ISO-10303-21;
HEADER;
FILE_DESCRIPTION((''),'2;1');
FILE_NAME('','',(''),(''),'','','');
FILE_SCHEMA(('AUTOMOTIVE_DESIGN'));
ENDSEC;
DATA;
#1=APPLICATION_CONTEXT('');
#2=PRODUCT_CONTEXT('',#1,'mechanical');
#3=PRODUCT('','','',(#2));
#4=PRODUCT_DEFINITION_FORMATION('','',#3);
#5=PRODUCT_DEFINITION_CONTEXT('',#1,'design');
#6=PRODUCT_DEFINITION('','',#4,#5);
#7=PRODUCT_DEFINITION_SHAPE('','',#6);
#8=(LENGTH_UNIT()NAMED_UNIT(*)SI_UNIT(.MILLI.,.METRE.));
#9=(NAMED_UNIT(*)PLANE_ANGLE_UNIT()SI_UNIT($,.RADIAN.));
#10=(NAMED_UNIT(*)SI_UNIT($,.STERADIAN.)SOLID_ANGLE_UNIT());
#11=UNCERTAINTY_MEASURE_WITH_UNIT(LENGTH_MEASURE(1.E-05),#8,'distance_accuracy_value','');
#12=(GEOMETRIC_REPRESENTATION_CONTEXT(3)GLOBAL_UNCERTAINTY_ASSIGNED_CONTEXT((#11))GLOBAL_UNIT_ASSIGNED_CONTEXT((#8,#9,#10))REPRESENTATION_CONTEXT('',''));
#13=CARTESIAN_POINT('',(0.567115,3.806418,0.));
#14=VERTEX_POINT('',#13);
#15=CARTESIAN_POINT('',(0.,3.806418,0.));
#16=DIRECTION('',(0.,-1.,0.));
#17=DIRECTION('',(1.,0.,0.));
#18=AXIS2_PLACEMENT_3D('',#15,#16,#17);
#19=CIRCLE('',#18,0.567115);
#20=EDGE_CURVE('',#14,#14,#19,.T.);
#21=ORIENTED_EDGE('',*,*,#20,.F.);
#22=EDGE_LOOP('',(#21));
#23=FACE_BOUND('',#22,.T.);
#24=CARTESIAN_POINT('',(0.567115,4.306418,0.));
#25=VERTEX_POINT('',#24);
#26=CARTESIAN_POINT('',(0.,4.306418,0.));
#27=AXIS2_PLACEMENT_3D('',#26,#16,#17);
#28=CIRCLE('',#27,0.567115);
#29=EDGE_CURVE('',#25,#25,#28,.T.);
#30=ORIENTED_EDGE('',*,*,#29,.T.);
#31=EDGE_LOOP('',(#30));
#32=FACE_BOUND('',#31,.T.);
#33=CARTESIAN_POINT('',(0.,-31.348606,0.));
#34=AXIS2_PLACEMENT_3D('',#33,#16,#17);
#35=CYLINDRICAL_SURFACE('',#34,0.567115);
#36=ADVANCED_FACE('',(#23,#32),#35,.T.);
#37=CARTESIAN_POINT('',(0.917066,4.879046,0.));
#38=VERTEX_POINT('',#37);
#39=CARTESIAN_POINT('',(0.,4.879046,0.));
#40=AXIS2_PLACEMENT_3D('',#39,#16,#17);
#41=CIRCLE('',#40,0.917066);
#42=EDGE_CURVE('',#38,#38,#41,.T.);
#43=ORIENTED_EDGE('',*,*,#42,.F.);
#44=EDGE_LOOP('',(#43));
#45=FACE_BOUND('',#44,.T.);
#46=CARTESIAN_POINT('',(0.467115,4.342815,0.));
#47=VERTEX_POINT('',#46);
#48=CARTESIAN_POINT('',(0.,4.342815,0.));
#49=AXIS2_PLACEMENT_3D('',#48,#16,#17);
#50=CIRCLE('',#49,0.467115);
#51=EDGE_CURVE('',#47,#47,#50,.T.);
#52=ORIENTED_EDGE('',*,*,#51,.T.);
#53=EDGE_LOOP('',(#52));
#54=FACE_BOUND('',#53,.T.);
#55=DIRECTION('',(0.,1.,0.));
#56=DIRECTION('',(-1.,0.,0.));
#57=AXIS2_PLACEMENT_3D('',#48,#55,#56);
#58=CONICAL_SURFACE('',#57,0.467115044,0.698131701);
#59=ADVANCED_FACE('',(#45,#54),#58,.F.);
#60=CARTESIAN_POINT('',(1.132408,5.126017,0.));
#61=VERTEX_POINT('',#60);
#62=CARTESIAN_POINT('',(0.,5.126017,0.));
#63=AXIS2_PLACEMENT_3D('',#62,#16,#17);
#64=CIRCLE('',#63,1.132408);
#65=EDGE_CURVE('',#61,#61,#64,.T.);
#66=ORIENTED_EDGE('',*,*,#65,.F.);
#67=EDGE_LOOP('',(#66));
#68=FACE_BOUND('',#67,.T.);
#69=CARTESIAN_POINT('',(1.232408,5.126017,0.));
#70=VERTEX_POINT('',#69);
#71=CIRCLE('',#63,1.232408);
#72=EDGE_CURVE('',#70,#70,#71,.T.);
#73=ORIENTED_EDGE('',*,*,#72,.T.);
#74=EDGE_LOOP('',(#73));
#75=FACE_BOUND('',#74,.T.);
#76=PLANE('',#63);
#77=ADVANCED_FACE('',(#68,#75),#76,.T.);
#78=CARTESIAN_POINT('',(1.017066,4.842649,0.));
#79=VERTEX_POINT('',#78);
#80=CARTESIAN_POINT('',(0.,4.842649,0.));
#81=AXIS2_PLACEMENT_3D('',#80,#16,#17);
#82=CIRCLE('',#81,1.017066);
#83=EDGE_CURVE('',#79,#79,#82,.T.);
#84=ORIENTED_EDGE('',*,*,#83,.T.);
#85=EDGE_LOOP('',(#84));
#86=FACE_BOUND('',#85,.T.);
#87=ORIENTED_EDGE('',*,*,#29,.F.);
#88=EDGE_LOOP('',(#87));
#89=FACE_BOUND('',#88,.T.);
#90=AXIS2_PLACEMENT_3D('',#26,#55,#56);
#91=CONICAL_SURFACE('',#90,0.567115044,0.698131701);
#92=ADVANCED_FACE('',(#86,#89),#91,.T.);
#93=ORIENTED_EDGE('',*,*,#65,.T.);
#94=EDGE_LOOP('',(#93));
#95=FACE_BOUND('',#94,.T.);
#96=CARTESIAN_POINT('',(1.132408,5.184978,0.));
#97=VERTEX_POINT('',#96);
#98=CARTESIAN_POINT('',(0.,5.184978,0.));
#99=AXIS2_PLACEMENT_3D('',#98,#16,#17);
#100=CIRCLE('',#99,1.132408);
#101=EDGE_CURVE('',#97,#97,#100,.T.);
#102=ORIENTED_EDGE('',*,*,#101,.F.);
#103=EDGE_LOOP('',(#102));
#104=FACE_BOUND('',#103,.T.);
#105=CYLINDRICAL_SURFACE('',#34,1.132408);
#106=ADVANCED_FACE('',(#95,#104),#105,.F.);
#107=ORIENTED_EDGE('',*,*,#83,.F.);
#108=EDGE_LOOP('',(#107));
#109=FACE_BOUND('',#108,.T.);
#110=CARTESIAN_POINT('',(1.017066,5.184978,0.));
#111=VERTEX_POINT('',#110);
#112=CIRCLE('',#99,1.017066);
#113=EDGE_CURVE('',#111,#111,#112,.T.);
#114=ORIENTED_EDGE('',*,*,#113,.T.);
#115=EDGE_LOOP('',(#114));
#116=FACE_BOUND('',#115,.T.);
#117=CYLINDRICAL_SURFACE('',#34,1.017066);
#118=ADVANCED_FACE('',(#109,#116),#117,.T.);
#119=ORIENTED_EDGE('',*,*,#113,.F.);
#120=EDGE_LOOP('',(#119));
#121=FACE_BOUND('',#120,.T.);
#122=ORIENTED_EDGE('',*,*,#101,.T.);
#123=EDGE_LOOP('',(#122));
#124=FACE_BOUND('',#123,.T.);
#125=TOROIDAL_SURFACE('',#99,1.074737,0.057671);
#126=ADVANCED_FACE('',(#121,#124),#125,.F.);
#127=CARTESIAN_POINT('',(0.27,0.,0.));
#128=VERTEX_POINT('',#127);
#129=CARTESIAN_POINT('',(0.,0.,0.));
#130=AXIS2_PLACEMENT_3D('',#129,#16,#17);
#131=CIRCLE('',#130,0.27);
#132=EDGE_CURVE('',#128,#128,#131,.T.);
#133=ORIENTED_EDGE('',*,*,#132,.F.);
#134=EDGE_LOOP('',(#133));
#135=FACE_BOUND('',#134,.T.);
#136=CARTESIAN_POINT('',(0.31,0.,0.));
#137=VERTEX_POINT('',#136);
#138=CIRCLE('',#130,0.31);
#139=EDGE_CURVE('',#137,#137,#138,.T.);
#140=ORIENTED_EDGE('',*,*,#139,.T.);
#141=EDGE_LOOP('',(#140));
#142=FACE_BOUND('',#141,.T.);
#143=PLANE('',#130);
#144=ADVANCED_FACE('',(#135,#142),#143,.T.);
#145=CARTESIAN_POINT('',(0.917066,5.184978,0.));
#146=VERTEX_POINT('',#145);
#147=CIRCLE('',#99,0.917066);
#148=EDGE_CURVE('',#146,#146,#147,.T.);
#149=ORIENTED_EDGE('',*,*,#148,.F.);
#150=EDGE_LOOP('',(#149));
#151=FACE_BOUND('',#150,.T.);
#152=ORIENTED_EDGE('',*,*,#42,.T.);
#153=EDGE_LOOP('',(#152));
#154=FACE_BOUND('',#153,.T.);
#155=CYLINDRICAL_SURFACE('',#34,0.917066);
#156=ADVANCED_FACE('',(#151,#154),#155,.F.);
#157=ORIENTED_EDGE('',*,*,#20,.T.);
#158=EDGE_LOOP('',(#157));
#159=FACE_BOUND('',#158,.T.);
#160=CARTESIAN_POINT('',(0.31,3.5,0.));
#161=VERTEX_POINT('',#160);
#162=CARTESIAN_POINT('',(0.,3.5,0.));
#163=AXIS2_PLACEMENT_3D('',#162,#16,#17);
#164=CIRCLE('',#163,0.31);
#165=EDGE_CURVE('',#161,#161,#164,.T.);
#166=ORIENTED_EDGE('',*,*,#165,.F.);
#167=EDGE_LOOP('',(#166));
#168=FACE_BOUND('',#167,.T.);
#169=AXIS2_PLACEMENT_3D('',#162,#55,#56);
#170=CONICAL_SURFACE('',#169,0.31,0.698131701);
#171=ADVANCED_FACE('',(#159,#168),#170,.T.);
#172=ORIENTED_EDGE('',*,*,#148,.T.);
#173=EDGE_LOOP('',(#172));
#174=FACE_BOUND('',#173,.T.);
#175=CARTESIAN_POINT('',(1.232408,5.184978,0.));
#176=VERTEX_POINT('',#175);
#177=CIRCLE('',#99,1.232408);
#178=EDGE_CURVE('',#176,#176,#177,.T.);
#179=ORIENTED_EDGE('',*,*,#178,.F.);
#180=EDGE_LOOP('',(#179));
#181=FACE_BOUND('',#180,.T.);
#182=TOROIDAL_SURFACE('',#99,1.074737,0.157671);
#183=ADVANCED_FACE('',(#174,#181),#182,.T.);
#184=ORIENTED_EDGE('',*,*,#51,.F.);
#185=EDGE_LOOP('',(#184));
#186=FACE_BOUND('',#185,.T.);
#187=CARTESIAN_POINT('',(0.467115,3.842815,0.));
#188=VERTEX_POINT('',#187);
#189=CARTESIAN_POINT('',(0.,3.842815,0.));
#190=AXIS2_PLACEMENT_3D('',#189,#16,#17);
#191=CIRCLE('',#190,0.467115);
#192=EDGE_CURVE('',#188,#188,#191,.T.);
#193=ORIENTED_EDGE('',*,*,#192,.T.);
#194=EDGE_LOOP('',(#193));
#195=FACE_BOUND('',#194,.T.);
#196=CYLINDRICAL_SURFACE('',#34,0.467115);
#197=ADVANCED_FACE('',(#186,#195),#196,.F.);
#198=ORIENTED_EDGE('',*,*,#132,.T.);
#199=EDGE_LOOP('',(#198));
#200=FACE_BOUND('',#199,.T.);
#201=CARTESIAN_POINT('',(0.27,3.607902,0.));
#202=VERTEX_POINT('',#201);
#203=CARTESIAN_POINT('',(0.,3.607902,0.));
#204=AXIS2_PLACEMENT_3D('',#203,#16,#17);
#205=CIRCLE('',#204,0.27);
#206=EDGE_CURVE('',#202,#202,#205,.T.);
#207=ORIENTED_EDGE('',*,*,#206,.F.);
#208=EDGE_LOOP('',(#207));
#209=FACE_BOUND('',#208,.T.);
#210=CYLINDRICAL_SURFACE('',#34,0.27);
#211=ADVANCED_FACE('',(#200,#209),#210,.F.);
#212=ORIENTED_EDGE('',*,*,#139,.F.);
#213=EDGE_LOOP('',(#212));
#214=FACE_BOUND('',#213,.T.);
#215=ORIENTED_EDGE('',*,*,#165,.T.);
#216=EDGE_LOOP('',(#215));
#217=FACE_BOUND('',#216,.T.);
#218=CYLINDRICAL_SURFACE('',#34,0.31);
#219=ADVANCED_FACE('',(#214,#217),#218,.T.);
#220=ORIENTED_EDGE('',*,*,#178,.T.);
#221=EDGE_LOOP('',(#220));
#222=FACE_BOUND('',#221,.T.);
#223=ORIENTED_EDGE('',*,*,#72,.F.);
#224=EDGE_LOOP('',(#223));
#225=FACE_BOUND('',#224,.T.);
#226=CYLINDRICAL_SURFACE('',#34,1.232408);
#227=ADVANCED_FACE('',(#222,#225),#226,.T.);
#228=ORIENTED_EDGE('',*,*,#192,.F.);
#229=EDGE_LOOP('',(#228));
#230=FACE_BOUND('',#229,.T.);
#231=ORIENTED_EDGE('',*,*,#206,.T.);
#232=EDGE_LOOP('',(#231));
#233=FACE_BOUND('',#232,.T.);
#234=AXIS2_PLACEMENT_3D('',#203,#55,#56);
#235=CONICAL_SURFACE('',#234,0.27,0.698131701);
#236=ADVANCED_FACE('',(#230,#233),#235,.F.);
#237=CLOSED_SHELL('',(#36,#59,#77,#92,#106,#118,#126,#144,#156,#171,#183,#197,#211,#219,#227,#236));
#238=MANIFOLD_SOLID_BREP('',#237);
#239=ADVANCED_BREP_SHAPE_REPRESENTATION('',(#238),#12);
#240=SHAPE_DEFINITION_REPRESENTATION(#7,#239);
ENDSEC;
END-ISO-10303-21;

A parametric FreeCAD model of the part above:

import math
import FreeCAD as App
import Part
import Sketcher

V = App.Vector
Q = App.Units.Quantity

doc = App.newDocument("Part")
body = doc.addObject("PartDesign::Body", "Body")

sketch1 = body.newObject("Sketcher::SketchObject", "Sketch")
sketch1.AttachmentSupport = (doc.getObject("XY_Plane"), [""])
sketch1.MapMode = "FlatFace"
sketch1.addGeometry(Part.ArcOfCircle(Part.Circle(V(1.074737, 5.184978, 0), V(0, 0, 1), 0.157671), math.radians(0), math.radians(180)), False)
sketch1.addGeometry(Part.LineSegment(V(0.917066, 5.184978, 0), V(0.917066, 4.879046, 0)), False)
sketch1.addGeometry(Part.LineSegment(V(0.917066, 4.879046, 0), V(0.467115, 4.342815, 0)), False)
sketch1.addGeometry(Part.LineSegment(V(0.467115, 4.342815, 0), V(0.467115, 3.842815, 0)), False)
sketch1.addGeometry(Part.LineSegment(V(0.467115, 3.842815, 0), V(0.27, 3.607902, 0)), False)
sketch1.addGeometry(Part.LineSegment(V(0.27, 3.607902, 0), V(0.27, 0, 0)), False)
sketch1.addGeometry(Part.LineSegment(V(0.27, 0, 0), V(0.31, 0, 0)), False)
sketch1.addGeometry(Part.LineSegment(V(0.31, 0, 0), V(0.31, 3.5, 0)), False)
sketch1.addGeometry(Part.LineSegment(V(0.31, 3.5, 0), V(0.567115, 3.806418, 0)), False)
sketch1.addGeometry(Part.LineSegment(V(0.567115, 3.806418, 0), V(0.567115, 4.306418, 0)), False)
sketch1.addGeometry(Part.LineSegment(V(0.567115, 4.306418, 0), V(1.017066, 4.842649, 0)), False)
sketch1.addGeometry(Part.LineSegment(V(1.017066, 4.842649, 0), V(1.017066, 5.184978, 0)), False)
sketch1.addGeometry(Part.ArcOfCircle(Part.Circle(V(1.074737, 5.184978, 0), V(0, 0, 1), 0.057671), math.radians(0.000001), math.radians(179.999999)), False)
sketch1.addGeometry(Part.LineSegment(V(1.132408, 5.184978, 0), V(1.132408, 5.126017, 0)), False)
sketch1.addGeometry(Part.LineSegment(V(1.132408, 5.126017, 0), V(1.232408, 5.126017, 0)), False)
sketch1.addGeometry(Part.LineSegment(V(1.232408, 5.126017, 0), V(1.232408, 5.184978, 0)), False)
sketch1.addConstraint(Sketcher.Constraint("Tangent", 0, 2, 1, 1))
sketch1.addConstraint(Sketcher.Constraint("Coincident", 1, 2, 2, 1))
sketch1.addConstraint(Sketcher.Constraint("Coincident", 2, 2, 3, 1))
sketch1.addConstraint(Sketcher.Constraint("Coincident", 3, 2, 4, 1))
sketch1.addConstraint(Sketcher.Constraint("Coincident", 4, 2, 5, 1))
sketch1.addConstraint(Sketcher.Constraint("Coincident", 5, 2, 6, 1))
sketch1.addConstraint(Sketcher.Constraint("Coincident", 6, 2, 7, 1))
sketch1.addConstraint(Sketcher.Constraint("Coincident", 7, 2, 8, 1))
sketch1.addConstraint(Sketcher.Constraint("Coincident", 8, 2, 9, 1))
sketch1.addConstraint(Sketcher.Constraint("Coincident", 9, 2, 10, 1))
sketch1.addConstraint(Sketcher.Constraint("Coincident", 10, 2, 11, 1))
sketch1.addConstraint(Sketcher.Constraint("Tangent", 11, 2, 12, 2))
sketch1.addConstraint(Sketcher.Constraint("Tangent", 12, 1, 13, 1))
sketch1.addConstraint(Sketcher.Constraint("Coincident", 13, 2, 14, 1))
sketch1.addConstraint(Sketcher.Constraint("Coincident", 14, 2, 15, 1))
sketch1.addConstraint(Sketcher.Constraint("Tangent", 15, 2, 0, 1))
sketch1.addConstraint(Sketcher.Constraint("Vertical", 1))
sketch1.addConstraint(Sketcher.Constraint("Vertical", 3))
sketch1.addConstraint(Sketcher.Constraint("Vertical", 5))
sketch1.addConstraint(Sketcher.Constraint("Horizontal", 6))
sketch1.addConstraint(Sketcher.Constraint("Vertical", 7))
sketch1.addConstraint(Sketcher.Constraint("Vertical", 9))
sketch1.addConstraint(Sketcher.Constraint("Vertical", 11))
sketch1.addConstraint(Sketcher.Constraint("Vertical", 13))
sketch1.addConstraint(Sketcher.Constraint("Horizontal", 14))
sketch1.addConstraint(Sketcher.Constraint("Vertical", 15))
sketch1.addConstraint(Sketcher.Constraint("Coincident", 12, 3, 0, 3))
sketch1.addConstraint(Sketcher.Constraint("PointOnObject", 5, 2, -1))
sketch1.addConstraint(Sketcher.Constraint("Parallel", 2, 4))
sketch1.addConstraint(Sketcher.Constraint("Parallel", 4, 8))
sketch1.addConstraint(Sketcher.Constraint("Parallel", 8, 10))
sketch1.addConstraint(Sketcher.Constraint("Equal", 3, 9))
sketch1.addConstraint(Sketcher.Constraint("Equal", 2, 10))
sketch1.addConstraint(Sketcher.Constraint("Angle", 2, Q("-130 deg")))
sketch1.addConstraint(Sketcher.Constraint("DistanceX", 14, 1, 14, 2, 0.1))
sketch1.addConstraint(Sketcher.Constraint("DistanceY", 3, 2, 3, 1, 0.5))
sketch1.addConstraint(Sketcher.Constraint("DistanceY", 7, 1, 7, 2, 3.5))
sketch1.addConstraint(Sketcher.Constraint("Distance", 2, 0.7))
sketch1.addConstraint(Sketcher.Constraint("Distance", 8, 0.4))
sketch1.addConstraint(Sketcher.Constraint("DistanceX", 6, 1, 6, 2, 0.04))
sketch1.addConstraint(Sketcher.Constraint("DistanceX", -1, 1, 4, 2, 0.27))
sketch1.addConstraint(Sketcher.Constraint("Radius", 0, 0.157671))
sketch1.addConstraint(Sketcher.Constraint("DistanceY", 11, 1, 11, 2, 0.342329))
sketch1.addConstraint(Sketcher.Constraint("DistanceY", 13, 2, 13, 1, 0.058961))
sketch1.addConstraint(Sketcher.Constraint("DistanceY", 1, 2, 1, 1, 0.305932))
revolution = body.newObject("PartDesign::Revolution", "Revolution")
revolution.Profile = sketch1
revolution.ReferenceAxis = (sketch1, ["V_Axis"])
revolution.Angle = 360

doc.recompute()
